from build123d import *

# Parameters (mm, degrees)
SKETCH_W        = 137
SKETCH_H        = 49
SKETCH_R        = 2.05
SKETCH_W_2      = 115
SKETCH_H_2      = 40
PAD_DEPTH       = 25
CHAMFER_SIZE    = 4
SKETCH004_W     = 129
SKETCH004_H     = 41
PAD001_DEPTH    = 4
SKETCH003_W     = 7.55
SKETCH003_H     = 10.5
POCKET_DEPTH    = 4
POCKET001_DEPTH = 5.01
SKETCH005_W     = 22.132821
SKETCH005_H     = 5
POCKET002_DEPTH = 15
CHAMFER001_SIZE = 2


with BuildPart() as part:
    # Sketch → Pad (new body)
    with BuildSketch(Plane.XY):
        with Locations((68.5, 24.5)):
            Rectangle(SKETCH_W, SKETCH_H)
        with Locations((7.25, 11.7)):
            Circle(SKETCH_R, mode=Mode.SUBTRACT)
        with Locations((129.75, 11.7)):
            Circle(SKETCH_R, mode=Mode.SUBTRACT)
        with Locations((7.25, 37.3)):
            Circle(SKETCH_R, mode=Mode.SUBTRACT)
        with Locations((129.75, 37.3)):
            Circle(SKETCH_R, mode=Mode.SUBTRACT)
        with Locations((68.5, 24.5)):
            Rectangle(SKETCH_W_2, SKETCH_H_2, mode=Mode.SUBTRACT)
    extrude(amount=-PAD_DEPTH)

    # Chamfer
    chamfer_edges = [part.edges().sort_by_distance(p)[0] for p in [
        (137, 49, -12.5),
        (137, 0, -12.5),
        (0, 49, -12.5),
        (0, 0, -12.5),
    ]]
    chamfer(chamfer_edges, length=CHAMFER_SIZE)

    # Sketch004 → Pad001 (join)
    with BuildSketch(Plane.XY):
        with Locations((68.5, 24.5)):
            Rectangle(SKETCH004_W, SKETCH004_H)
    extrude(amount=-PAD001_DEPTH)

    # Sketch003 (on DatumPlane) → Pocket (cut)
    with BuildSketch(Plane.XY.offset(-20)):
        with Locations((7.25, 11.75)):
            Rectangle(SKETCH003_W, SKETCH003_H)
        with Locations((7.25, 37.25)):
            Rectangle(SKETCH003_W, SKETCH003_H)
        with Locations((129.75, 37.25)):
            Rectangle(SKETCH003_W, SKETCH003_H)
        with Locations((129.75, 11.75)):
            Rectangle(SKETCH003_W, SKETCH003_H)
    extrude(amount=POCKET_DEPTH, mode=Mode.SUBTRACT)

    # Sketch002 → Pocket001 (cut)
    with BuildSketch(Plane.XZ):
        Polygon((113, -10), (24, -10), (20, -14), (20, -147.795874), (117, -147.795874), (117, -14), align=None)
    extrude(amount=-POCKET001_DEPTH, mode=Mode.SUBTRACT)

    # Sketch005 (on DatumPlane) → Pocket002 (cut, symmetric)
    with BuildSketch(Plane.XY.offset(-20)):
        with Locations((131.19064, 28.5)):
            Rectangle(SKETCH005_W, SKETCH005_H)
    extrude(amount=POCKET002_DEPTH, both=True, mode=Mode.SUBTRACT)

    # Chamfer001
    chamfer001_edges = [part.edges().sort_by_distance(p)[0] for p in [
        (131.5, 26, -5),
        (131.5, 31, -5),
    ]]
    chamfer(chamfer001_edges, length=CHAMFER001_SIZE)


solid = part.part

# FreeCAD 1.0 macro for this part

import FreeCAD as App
import Part
import Sketcher

V = App.Vector
Q = App.Units.Quantity


def edges_at(feature, points):
    """Names of the edges that pass closest to the given points."""
    edges = feature.Shape.Edges
    near = lambda p: min(range(len(edges)), key=lambda i: edges[i].distToShape(Part.Vertex(*p))[0])
    return sorted({f"Edge{near(p) + 1}" for p in points})

doc = App.newDocument("Part")
params = doc.addObject("Spreadsheet::Sheet", "Params")
for row, (alias, value) in enumerate([
    ("sketch1_diameter", "4.1 mm"),
    ("sketch1_width", "137 mm"),
    ("sketch1_width2", "115 mm"),
    ("sketch1_height", "49 mm"),
    ("sketch1_height2", "40 mm"),
    ("pad1_length", "25 mm"),
    ("chamfer_size", "4 mm"),
    ("sketch2_width", "129 mm"),
    ("sketch2_height", "41 mm"),
    ("pad2_length", "4 mm"),
    ("sketch3_height", "10.5 mm"),
    ("sketch3_width", "7.55 mm"),
    ("pocket1_length", "4 mm"),
    ("sketch4_width", "89 mm"),
    ("sketch4_width2", "97 mm"),
    ("pocket2_length", "5.01 mm"),
    ("sketch5_height", "5 mm"),
    ("pocket3_length", "30 mm"),
    ("chamfer2_size", "2 mm"),
], start=1):
    params.set(f"A{row}", alias)
    params.set(f"B{row}", "=" + value)
    params.setAlias(f"B{row}", alias)

body = doc.addObject("PartDesign::Body", "Body")

# Sketch on XY plane
sketch1 = body.newObject("Sketcher::SketchObject", "Sketch")
sketch1.AttachmentSupport = (doc.getObject("XY_Plane"), [""])
sketch1.MapMode = "FlatFace"
sketch1.addGeometry([
    Part.LineSegment(V(0, 49, 0), V(0, 0, 0)),  # 0
    Part.LineSegment(V(0, 0, 0), V(137, 0, 0)),  # 1
    Part.LineSegment(V(137, 0, 0), V(137, 49, 0)),  # 2
    Part.LineSegment(V(137, 49, 0), V(0, 49, 0)),  # 3
    Part.Circle(V(7.25, 11.7, 0), V(0, 0, 1), 2.05),  # 4
    Part.Circle(V(129.75, 11.7, 0), V(0, 0, 1), 2.05),  # 5
    Part.Circle(V(7.25, 37.3, 0), V(0, 0, 1), 2.05),  # 6
    Part.LineSegment(V(126, 4.5, 0), V(11, 4.5, 0)),  # 7
    Part.LineSegment(V(11, 4.5, 0), V(11, 44.5, 0)),  # 8
    Part.LineSegment(V(11, 44.5, 0), V(126, 44.5, 0)),  # 9
    Part.LineSegment(V(126, 44.5, 0), V(126, 4.5, 0)),  # 10
    Part.Circle(V(129.75, 37.3, 0), V(0, 0, 1), 2.05),  # 11
], False)
sketch1.addConstraint([
    Sketcher.Constraint("Coincident", 0, 2, 1, 1),
    Sketcher.Constraint("Coincident", 1, 2, 2, 1),
    Sketcher.Constraint("Coincident", 2, 2, 3, 1),
    Sketcher.Constraint("Coincident", 3, 2, 0, 1),
    Sketcher.Constraint("Coincident", 7, 2, 8, 1),
    Sketcher.Constraint("Coincident", 8, 2, 9, 1),
    Sketcher.Constraint("Coincident", 9, 2, 10, 1),
    Sketcher.Constraint("Coincident", 10, 2, 7, 1),
    Sketcher.Constraint("Vertical", 0),
    Sketcher.Constraint("Horizontal", 1),
    Sketcher.Constraint("Vertical", 2),
    Sketcher.Constraint("Horizontal", 3),
    Sketcher.Constraint("Horizontal", 7),
    Sketcher.Constraint("Vertical", 8),
    Sketcher.Constraint("Horizontal", 9),
    Sketcher.Constraint("Vertical", 10),
    Sketcher.Constraint("Coincident", 0, 2, -1, 1),
    Sketcher.Constraint("Equal", 4, 5),
    Sketcher.Constraint("Equal", 5, 6),
    Sketcher.Constraint("Equal", 6, 11),
    Sketcher.Constraint("Horizontal", 4, 3, 5, 3),
    Sketcher.Constraint("Horizontal", 6, 3, 11, 3),
    Sketcher.Constraint("Vertical", 4, 3, 6, 3),
    Sketcher.Constraint("Vertical", 5, 3, 11, 3),
    Sketcher.Constraint("Diameter", 4, Q("4.1 mm")),
    Sketcher.Constraint("DistanceX", 1, 1, 1, 2, Q("137 mm")),
    Sketcher.Constraint("DistanceX", 7, 2, 7, 1, Q("115 mm")),
    Sketcher.Constraint("DistanceY", 0, 2, 0, 1, Q("49 mm")),
    Sketcher.Constraint("DistanceY", 8, 1, 8, 2, Q("40 mm")),
    Sketcher.Constraint("DistanceX", -1, 1, 7, 2, Q("11 mm")),
    Sketcher.Constraint("DistanceY", -1, 1, 4, 3, Q("11.7 mm")),
    Sketcher.Constraint("DistanceY", -1, 1, 6, 3, Q("37.3 mm")),
    Sketcher.Constraint("DistanceY", -1, 1, 7, 2, Q("4.5 mm")),
    Sketcher.Constraint("DistanceX", 4, 3, 5, 3, Q("122.5 mm")),
    Sketcher.Constraint("DistanceX", -1, 1, 4, 3, Q("7.25 mm")),
])
sketch1.setExpression("Constraints[24]", "Params.sketch1_diameter")
sketch1.setExpression("Constraints[25]", "Params.sketch1_width")
sketch1.setExpression("Constraints[26]", "Params.sketch1_width2")
sketch1.setExpression("Constraints[27]", "Params.sketch1_height")
sketch1.setExpression("Constraints[28]", "Params.sketch1_height2")
pad1 = body.newObject("PartDesign::Pad", "Pad")
pad1.Profile = sketch1
pad1.setExpression("Length", "Params.pad1_length")
pad1.Reversed = True
doc.recompute()

chamfer = body.newObject("PartDesign::Chamfer", "Chamfer")
chamfer.Base = (pad1, edges_at(pad1, [
    (137, 49, -12.5),
    (137, 0, -12.5),
    (0, 49, -12.5),
    (0, 0, -12.5),
]))
chamfer.setExpression("Size", "Params.chamfer_size")

# Sketch on XY plane
sketch2 = body.newObject("Sketcher::SketchObject", "Sketch001")
sketch2.AttachmentSupport = (doc.getObject("XY_Plane"), [""])
sketch2.MapMode = "FlatFace"
sketch2.addGeometry([
    Part.LineSegment(V(4, 45, 0), V(4, 4, 0)),
    Part.LineSegment(V(4, 4, 0), V(133, 4, 0)),
    Part.LineSegment(V(133, 4, 0), V(133, 45, 0)),
    Part.LineSegment(V(133, 45, 0), V(4, 45, 0)),
], False)
sketch2.addConstraint([
    Sketcher.Constraint("Coincident", 0, 2, 1, 1),
    Sketcher.Constraint("Coincident", 1, 2, 2, 1),
    Sketcher.Constraint("Coincident", 2, 2, 3, 1),
    Sketcher.Constraint("Coincident", 3, 2, 0, 1),
    Sketcher.Constraint("Vertical", 0),
    Sketcher.Constraint("Horizontal", 1),
    Sketcher.Constraint("Vertical", 2),
    Sketcher.Constraint("Horizontal", 3),
    Sketcher.Constraint("DistanceX", 1, 1, 1, 2, Q("129 mm")),
    Sketcher.Constraint("DistanceY", 0, 2, 0, 1, Q("41 mm")),
    Sketcher.Constraint("DistanceX", -1, 1, 0, 2, Q("4 mm")),
    Sketcher.Constraint("DistanceY", -1, 1, 0, 2, Q("4 mm")),
])
sketch2.setExpression("Constraints[8]", "Params.sketch2_width")
sketch2.setExpression("Constraints[9]", "Params.sketch2_height")
pad2 = body.newObject("PartDesign::Pad", "Pad001")
pad2.Profile = sketch2
pad2.setExpression("Length", "Params.pad2_length")
pad2.Reversed = True

# Sketch on XY plane
sketch3 = body.newObject("Sketcher::SketchObject", "Sketch002")
sketch3.AttachmentSupport = (doc.getObject("XY_Plane"), [""])
sketch3.MapMode = "FlatFace"
sketch3.AttachmentOffset = App.Placement(V(0, 0, -20), App.Rotation())
sketch3.addGeometry([
    Part.LineSegment(V(3.475, 17, 0), V(3.475, 6.5, 0)),  # 0
    Part.LineSegment(V(3.475, 6.5, 0), V(11.025, 6.5, 0)),  # 1
    Part.LineSegment(V(11.025, 6.5, 0), V(11.025, 17, 0)),  # 2
    Part.LineSegment(V(11.025, 17, 0), V(3.475, 17, 0)),  # 3
    Part.LineSegment(V(3.475, 42.5, 0), V(3.475, 32, 0)),  # 4
    Part.LineSegment(V(3.475, 32, 0), V(11.025, 32, 0)),  # 5
    Part.LineSegment(V(11.025, 32, 0), V(11.025, 42.5, 0)),  # 6
    Part.LineSegment(V(11.025, 42.5, 0), V(3.475, 42.5, 0)),  # 7
    Part.LineSegment(V(125.975, 42.5, 0), V(125.975, 32, 0)),  # 8
    Part.LineSegment(V(125.975, 32, 0), V(133.525, 32, 0)),  # 9
    Part.LineSegment(V(133.525, 32, 0), V(133.525, 42.5, 0)),  # 10
    Part.LineSegment(V(133.525, 42.5, 0), V(125.975, 42.5, 0)),  # 11
    Part.LineSegment(V(125.975, 17, 0), V(125.975, 6.5, 0)),  # 12
    Part.LineSegment(V(125.975, 6.5, 0), V(133.525, 6.5, 0)),  # 13
    Part.LineSegment(V(133.525, 6.5, 0), V(133.525, 17, 0)),  # 14
    Part.LineSegment(V(133.525, 17, 0), V(125.975, 17, 0)),  # 15
], False)
sketch3.addConstraint([
    Sketcher.Constraint("Coincident", 0, 2, 1, 1),
    Sketcher.Constraint("Coincident", 1, 2, 2, 1),
    Sketcher.Constraint("Coincident", 2, 2, 3, 1),
    Sketcher.Constraint("Coincident", 3, 2, 0, 1),
    Sketcher.Constraint("Coincident", 4, 2, 5, 1),
    Sketcher.Constraint("Coincident", 5, 2, 6, 1),
    Sketcher.Constraint("Coincident", 6, 2, 7, 1),
    Sketcher.Constraint("Coincident", 7, 2, 4, 1),
    Sketcher.Constraint("Coincident", 8, 2, 9, 1),
    Sketcher.Constraint("Coincident", 9, 2, 10, 1),
    Sketcher.Constraint("Coincident", 10, 2, 11, 1),
    Sketcher.Constraint("Coincident", 11, 2, 8, 1),
    Sketcher.Constraint("Coincident", 12, 2, 13, 1),
    Sketcher.Constraint("Coincident", 13, 2, 14, 1),
    Sketcher.Constraint("Coincident", 14, 2, 15, 1),
    Sketcher.Constraint("Coincident", 15, 2, 12, 1),
    Sketcher.Constraint("Vertical", 0),
    Sketcher.Constraint("Horizontal", 1),
    Sketcher.Constraint("Vertical", 2),
    Sketcher.Constraint("Horizontal", 3),
    Sketcher.Constraint("Vertical", 4),
    Sketcher.Constraint("Horizontal", 5),
    Sketcher.Constraint("Vertical", 6),
    Sketcher.Constraint("Horizontal", 7),
    Sketcher.Constraint("Vertical", 8),
    Sketcher.Constraint("Horizontal", 9),
    Sketcher.Constraint("Vertical", 10),
    Sketcher.Constraint("Horizontal", 11),
    Sketcher.Constraint("Vertical", 12),
    Sketcher.Constraint("Horizontal", 13),
    Sketcher.Constraint("Vertical", 14),
    Sketcher.Constraint("Horizontal", 15),
    Sketcher.Constraint("Horizontal", 5, 2, 8, 2),
    Sketcher.Constraint("Horizontal", 7, 2, 10, 2),
    Sketcher.Constraint("Horizontal", 1, 2, 12, 2),
    Sketcher.Constraint("Horizontal", 3, 2, 14, 2),
    Sketcher.Constraint("Vertical", 3, 2, 4, 2),
    Sketcher.Constraint("Vertical", 2, 2, 5, 2),
    Sketcher.Constraint("Vertical", 11, 2, 12, 2),
    Sketcher.Constraint("Vertical", 10, 2, 13, 2),
    Sketcher.Constraint("Equal", 7, 9),
    Sketcher.Constraint("Equal", 2, 4),
    Sketcher.Constraint("DistanceY", 0, 2, 0, 1, Q("10.5 mm")),
    Sketcher.Constraint("DistanceY", -1, 1, 2, 2, Q("17 mm")),
    Sketcher.Constraint("DistanceY", -1, 1, 4, 2, Q("32 mm")),
    Sketcher.Constraint("DistanceX", 1, 1, 1, 2, Q("7.55 mm")),
    Sketcher.Constraint("DistanceX", 4, 2, 8, 2, Q("122.5 mm")),
    Sketcher.Constraint("DistanceX", -1, 1, 0, 2, Q("3.475 mm")),
])
sketch3.setExpression("Constraints[42]", "Params.sketch3_height")
sketch3.setExpression("Constraints[45]", "Params.sketch3_width")
pocket1 = body.newObject("PartDesign::Pocket", "Pocket")
pocket1.Profile = sketch3
pocket1.setExpression("Length", "Params.pocket1_length")
pocket1.Reversed = True

# Sketch on XZ plane
sketch4 = body.newObject("Sketcher::SketchObject", "Sketch003")
sketch4.AttachmentSupport = (doc.getObject("XZ_Plane"), [""])
sketch4.MapMode = "FlatFace"
sketch4.addGeometry([
    Part.LineSegment(V(113, -10, 0), V(24, -10, 0)),  # 0
    Part.LineSegment(V(24, -10, 0), V(20, -14, 0)),  # 1
    Part.LineSegment(V(20, -14, 0), V(20, -147.795874, 0)),  # 2
    Part.LineSegment(V(20, -147.795874, 0), V(117, -147.795874, 0)),  # 3
    Part.LineSegment(V(117, -147.795874, 0), V(117, -14, 0)),  # 4
    Part.LineSegment(V(117, -14, 0), V(113, -10, 0)),  # 5
], False)
sketch4.addConstraint([
    Sketcher.Constraint("Coincident", 0, 2, 1, 1),
    Sketcher.Constraint("Coincident", 1, 2, 2, 1),
    Sketcher.Constraint("Coincident", 2, 2, 3, 1),
    Sketcher.Constraint("Coincident", 3, 2, 4, 1),
    Sketcher.Constraint("Coincident", 4, 2, 5, 1),
    Sketcher.Constraint("Coincident", 5, 2, 0, 1),
    Sketcher.Constraint("Horizontal", 0),
    Sketcher.Constraint("Vertical", 2),
    Sketcher.Constraint("Horizontal", 3),
    Sketcher.Constraint("Vertical", 4),
    Sketcher.Constraint("Perpendicular", 1, 5),
    Sketcher.Constraint("Horizontal", 1, 2, 4, 2),
    Sketcher.Constraint("Equal", 1, 5),
    Sketcher.Constraint("DistanceX", 0, 2, 0, 1, Q("89 mm")),
    Sketcher.Constraint("DistanceX", 3, 1, 3, 2, Q("97 mm")),
    Sketcher.Constraint("DistanceX", -1, 1, 0, 2, Q("24 mm")),
    Sketcher.Constraint("DistanceY", 0, 2, -1, 1, Q("10 mm")),
    Sketcher.Constraint("DistanceY", 2, 2, 2, 1, Q("133.795874 mm")),
])
sketch4.setExpression("Constraints[13]", "Params.sketch4_width")
sketch4.setExpression("Constraints[14]", "Params.sketch4_width2")
pocket2 = body.newObject("PartDesign::Pocket", "Pocket001")
pocket2.Profile = sketch4
pocket2.setExpression("Length", "Params.pocket2_length")

# Sketch on XY plane
sketch5 = body.newObject("Sketcher::SketchObject", "Sketch004")
sketch5.AttachmentSupport = (doc.getObject("XY_Plane"), [""])
sketch5.MapMode = "FlatFace"
sketch5.AttachmentOffset = App.Placement(V(0, 0, -20), App.Rotation())
sketch5.addGeometry([
    Part.LineSegment(V(120.124229, 31, 0), V(120.124229, 26, 0)),
    Part.LineSegment(V(120.124229, 26, 0), V(142.25705, 26, 0)),
    Part.LineSegment(V(142.25705, 26, 0), V(142.25705, 31, 0)),
    Part.LineSegment(V(142.25705, 31, 0), V(120.124229, 31, 0)),
], False)
sketch5.addConstraint([
    Sketcher.Constraint("Coincident", 0, 2, 1, 1),
    Sketcher.Constraint("Coincident", 1, 2, 2, 1),
    Sketcher.Constraint("Coincident", 2, 2, 3, 1),
    Sketcher.Constraint("Coincident", 3, 2, 0, 1),
    Sketcher.Constraint("Vertical", 0),
    Sketcher.Constraint("Horizontal", 1),
    Sketcher.Constraint("Vertical", 2),
    Sketcher.Constraint("Horizontal", 3),
    Sketcher.Constraint("DistanceY", 0, 2, 0, 1, Q("5 mm")),
    Sketcher.Constraint("DistanceY", -1, 1, 0, 2, Q("26 mm")),
    Sketcher.Constraint("DistanceX", 1, 1, 1, 2, Q("22.132821 mm")),
    Sketcher.Constraint("DistanceX", -1, 1, 0, 2, Q("120.124229 mm")),
])
sketch5.setExpression("Constraints[8]", "Params.sketch5_height")
pocket3 = body.newObject("PartDesign::Pocket", "Pocket002")
pocket3.Profile = sketch5
pocket3.setExpression("Length", "Params.pocket3_length")
pocket3.Midplane = True
doc.recompute()

chamfer2 = body.newObject("PartDesign::Chamfer", "Chamfer001")
chamfer2.Base = (pocket3, edges_at(pocket3, [(131.5, 26, -5), (131.5, 31, -5)]))
chamfer2.setExpression("Size", "Params.chamfer2_size")

doc.recompute()
